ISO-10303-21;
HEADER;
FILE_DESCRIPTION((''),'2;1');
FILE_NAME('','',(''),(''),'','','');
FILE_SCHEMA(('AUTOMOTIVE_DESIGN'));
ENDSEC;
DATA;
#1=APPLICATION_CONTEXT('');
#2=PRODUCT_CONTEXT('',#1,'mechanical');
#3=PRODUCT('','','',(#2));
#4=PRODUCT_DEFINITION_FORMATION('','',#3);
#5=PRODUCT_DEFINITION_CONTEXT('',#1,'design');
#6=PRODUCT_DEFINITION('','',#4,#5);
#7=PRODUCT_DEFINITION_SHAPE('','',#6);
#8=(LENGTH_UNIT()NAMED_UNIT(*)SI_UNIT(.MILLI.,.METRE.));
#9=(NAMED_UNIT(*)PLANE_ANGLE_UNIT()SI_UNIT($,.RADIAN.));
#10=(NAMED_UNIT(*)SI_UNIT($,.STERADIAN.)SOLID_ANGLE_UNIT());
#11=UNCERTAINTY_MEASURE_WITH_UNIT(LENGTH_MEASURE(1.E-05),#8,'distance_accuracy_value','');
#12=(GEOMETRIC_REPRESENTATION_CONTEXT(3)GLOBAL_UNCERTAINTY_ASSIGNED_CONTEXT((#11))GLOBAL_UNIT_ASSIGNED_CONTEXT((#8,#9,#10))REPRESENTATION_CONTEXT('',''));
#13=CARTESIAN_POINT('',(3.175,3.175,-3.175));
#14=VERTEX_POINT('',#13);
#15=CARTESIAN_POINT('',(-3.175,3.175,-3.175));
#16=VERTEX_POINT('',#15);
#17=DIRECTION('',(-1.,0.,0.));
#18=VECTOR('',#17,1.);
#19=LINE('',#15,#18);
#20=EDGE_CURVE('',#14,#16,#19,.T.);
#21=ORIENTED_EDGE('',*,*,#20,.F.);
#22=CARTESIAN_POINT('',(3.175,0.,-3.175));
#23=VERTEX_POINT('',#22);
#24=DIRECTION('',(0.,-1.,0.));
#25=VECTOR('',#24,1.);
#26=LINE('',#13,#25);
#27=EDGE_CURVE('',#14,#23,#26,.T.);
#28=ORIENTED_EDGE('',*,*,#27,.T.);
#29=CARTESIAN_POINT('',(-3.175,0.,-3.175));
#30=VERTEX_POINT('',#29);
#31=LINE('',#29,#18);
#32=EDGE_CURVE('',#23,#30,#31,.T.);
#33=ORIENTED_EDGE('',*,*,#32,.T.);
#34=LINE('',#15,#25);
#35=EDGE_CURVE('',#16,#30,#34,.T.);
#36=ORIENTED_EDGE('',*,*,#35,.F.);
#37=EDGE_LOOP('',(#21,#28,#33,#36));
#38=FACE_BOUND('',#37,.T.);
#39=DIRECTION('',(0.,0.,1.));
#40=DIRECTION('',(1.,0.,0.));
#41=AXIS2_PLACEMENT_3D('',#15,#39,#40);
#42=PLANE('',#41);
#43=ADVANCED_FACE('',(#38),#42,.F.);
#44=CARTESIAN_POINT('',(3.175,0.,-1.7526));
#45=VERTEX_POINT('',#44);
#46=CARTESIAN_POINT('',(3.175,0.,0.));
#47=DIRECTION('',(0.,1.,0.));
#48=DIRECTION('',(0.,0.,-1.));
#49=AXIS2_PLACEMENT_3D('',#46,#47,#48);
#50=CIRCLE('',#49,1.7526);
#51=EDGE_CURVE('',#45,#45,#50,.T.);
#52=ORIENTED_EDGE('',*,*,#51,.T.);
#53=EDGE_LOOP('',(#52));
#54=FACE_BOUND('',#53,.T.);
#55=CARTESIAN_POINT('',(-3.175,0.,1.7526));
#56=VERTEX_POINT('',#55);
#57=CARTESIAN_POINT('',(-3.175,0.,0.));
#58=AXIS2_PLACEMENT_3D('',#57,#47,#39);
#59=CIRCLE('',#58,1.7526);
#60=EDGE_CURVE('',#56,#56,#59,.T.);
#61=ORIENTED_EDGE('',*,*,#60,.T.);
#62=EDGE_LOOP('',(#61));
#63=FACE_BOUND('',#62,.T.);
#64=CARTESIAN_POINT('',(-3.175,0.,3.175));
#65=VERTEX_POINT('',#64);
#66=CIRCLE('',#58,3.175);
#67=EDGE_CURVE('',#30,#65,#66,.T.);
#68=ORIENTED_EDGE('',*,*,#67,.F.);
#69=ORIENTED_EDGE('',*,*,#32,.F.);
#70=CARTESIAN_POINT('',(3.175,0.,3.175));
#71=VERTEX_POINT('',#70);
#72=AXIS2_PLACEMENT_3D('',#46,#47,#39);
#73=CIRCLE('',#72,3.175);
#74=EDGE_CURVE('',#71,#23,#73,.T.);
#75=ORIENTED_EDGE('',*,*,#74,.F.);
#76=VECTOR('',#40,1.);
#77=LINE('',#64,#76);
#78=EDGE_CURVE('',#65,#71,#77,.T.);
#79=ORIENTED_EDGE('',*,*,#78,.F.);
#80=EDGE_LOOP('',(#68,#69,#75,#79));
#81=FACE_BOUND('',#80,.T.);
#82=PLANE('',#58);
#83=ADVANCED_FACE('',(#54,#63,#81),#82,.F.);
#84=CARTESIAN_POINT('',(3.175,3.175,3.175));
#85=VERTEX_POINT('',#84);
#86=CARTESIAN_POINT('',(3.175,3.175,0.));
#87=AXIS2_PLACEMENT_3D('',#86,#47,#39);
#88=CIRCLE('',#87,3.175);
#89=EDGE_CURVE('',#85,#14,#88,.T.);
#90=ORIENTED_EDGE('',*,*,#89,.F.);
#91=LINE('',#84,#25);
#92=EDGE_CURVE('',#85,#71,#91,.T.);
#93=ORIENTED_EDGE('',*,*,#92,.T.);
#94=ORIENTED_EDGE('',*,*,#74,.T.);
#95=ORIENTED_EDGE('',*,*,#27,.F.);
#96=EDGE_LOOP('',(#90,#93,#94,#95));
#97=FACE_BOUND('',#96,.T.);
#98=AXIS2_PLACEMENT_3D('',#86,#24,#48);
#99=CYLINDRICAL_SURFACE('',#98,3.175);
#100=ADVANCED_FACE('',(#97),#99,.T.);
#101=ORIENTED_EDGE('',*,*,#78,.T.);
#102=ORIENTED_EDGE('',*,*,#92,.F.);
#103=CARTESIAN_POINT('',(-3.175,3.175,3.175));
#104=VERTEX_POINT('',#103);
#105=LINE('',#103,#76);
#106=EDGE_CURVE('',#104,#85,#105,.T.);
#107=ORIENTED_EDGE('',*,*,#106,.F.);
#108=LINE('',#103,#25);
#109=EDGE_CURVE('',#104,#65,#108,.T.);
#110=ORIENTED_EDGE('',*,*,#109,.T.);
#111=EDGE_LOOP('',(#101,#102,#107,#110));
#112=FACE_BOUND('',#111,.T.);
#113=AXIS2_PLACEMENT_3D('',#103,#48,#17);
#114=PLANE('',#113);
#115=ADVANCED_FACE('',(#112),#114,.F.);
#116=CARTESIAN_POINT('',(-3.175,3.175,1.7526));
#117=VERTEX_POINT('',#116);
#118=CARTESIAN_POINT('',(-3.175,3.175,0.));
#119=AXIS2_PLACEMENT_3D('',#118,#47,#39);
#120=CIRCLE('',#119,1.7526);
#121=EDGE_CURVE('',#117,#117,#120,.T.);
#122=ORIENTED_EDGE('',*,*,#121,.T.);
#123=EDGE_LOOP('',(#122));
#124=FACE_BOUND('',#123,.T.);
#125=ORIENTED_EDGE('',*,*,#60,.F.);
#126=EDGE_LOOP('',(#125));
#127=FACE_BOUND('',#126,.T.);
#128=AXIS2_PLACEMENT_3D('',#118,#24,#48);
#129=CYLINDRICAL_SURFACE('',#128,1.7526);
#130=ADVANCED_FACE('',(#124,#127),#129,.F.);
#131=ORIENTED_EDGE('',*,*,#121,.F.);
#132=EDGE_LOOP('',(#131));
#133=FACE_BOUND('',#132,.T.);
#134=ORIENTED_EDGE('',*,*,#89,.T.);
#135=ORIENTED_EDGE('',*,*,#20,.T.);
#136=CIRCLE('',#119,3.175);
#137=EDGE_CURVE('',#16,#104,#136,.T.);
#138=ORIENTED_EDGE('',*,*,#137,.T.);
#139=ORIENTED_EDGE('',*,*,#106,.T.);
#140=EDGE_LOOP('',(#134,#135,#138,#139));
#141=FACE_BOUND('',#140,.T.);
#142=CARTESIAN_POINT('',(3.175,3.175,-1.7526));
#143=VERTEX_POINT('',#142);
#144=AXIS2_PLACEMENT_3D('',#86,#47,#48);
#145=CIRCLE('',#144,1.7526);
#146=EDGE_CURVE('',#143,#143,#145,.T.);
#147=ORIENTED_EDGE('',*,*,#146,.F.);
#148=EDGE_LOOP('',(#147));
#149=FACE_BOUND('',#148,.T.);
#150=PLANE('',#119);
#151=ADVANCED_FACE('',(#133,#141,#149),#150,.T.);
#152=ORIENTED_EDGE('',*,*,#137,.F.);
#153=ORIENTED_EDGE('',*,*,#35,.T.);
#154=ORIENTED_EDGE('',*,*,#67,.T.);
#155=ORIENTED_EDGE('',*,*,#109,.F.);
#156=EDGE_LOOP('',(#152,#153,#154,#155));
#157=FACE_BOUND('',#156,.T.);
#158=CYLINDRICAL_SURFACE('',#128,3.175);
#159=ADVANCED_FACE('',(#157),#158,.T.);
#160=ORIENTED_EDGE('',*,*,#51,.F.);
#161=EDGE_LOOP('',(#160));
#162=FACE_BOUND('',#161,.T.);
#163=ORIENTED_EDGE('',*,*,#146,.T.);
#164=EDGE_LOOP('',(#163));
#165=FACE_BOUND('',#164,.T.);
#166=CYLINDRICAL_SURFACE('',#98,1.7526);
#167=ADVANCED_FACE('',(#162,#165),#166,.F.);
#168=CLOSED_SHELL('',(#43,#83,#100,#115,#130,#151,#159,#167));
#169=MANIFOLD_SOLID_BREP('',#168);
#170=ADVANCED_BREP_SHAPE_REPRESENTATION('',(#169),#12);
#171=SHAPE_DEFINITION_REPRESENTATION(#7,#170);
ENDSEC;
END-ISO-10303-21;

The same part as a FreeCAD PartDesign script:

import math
import FreeCAD as App
import Part
import Sketcher
Q = App.Units.Quantity

doc = App.newDocument("Part")
body = doc.addObject("PartDesign::Body", "Body")

sketch1 = body.newObject("Sketcher::SketchObject", "Sketch")
sketch1.AttachmentSupport = (doc.getObject("XZ_Plane"), [""])
sketch1.MapMode = "FlatFace"
sketch1.addGeometry([
    Part.LineSegment(App.Vector(3.2, -3.2, 0), App.Vector(-3.2, -3.2, 0)),
    Part.ArcOfCircle(Part.Circle(App.Vector(-3.2, 0, 0), App.Vector(0, 0, 1), 3.2), math.radians(90), math.radians(270)),
    Part.LineSegment(App.Vector(-3.2, 3.2, 0), App.Vector(3.2, 3.2, 0)),
    Part.ArcOfCircle(Part.Circle(App.Vector(3.2, 0, 0), App.Vector(0, 0, 1), 3.2), math.radians(-90), math.radians(90)),
    Part.Circle(App.Vector(3.2, 0, 0), App.Vector(0, 0, 1), 1.8),
    Part.Circle(App.Vector(-3.2, 0, 0), App.Vector(0, 0, 1), 1.8),
], False)
sketch1.addConstraint([
    Sketcher.Constraint("Tangent", 0, 2, 1, 2),
    Sketcher.Constraint("Tangent", 1, 1, 2, 1),
    Sketcher.Constraint("Tangent", 2, 2, 3, 2),
    Sketcher.Constraint("Tangent", 3, 1, 0, 1),
    Sketcher.Constraint("Horizontal", 0),
    Sketcher.Constraint("Horizontal", 2),
    Sketcher.Constraint("Coincident", 4, 3, 3, 3),
    Sketcher.Constraint("Coincident", 5, 3, 1, 3),
    Sketcher.Constraint("Equal", 4, 5),
    Sketcher.Constraint("Symmetric", 1, 3, 3, 3, -1, 1),
    Sketcher.Constraint("Diameter", 4, Q("0.138 in")),
    Sketcher.Constraint("Radius", 1, Q("0.125 in")),
    Sketcher.Constraint("DistanceX", 0, 2, 0, 1, Q("0.25 in")),
])
pad1 = body.newObject("PartDesign::Pad", "Pad")
pad1.Profile = sketch1
pad1.Length = Q("0.125 in")
pad1.Reversed = True

doc.recompute()
